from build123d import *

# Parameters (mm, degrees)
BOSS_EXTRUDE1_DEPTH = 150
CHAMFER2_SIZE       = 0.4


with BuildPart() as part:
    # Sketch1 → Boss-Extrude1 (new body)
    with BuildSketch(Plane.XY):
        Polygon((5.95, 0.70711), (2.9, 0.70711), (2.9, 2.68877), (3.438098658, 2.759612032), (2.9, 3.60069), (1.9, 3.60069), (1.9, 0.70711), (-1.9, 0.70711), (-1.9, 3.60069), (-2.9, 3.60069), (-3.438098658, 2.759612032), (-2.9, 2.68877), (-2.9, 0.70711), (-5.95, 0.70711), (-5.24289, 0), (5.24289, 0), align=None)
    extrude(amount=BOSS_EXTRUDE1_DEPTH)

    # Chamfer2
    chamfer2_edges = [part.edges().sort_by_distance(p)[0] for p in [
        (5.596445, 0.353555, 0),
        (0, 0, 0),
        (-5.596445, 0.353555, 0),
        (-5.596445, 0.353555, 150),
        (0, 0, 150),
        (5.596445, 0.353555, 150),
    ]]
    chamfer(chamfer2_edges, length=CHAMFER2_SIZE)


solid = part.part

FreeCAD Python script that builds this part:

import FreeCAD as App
import Part
import Sketcher

V = App.Vector
Q = App.Units.Quantity


def edges_at(feature, points):
    """Names of the edges that pass closest to the given points."""
    edges = feature.Shape.Edges
    near = lambda p: min(range(len(edges)), key=lambda i: edges[i].distToShape(Part.Vertex(*p))[0])
    return sorted({f"Edge{near(p) + 1}" for p in points})


def add_polygon(sketch, points):
    """Adds a closed chain of lines whose ends are joined by coincident constraints."""
    first, n = sketch.GeometryCount, len(points)
    for a, b in zip(points, points[1:] + points[:1]):
        sketch.addGeometry(Part.LineSegment(App.Vector(*a, 0), App.Vector(*b, 0)), False)
    for i in range(n):
        sketch.addConstraint(Sketcher.Constraint("Coincident", first + i, 2, first + (i + 1) % n, 1))

doc = App.newDocument("Part")
body = doc.addObject("PartDesign::Body", "Body")

sketch1 = doc.addObject("Sketcher::SketchObject", "Sketch")
body.addObject(sketch1)
sketch1.AttachmentSupport = (doc.XY_Plane, [""])
sketch1.MapMode = "FlatFace"
add_polygon(sketch1, [(6, 0.7), (2.9, 0.7), (2.9, 2.7), (3.4, 2.8), (2.9, 3.6), (1.9, 3.6), (1.9, 0.7), (-1.9, 0.7), (-1.9, 3.6), (-2.9, 3.6), (-3.4, 2.8), (-2.9, 2.7), (-2.9, 0.7), (-6, 0.7), (-5.2, 0), (5.2, 0)])
sketch1.addConstraint([
    Sketcher.Constraint("Horizontal", 0),
    Sketcher.Constraint("Vertical", 1),
    Sketcher.Constraint("Horizontal", 4),
    Sketcher.Constraint("Vertical", 5),
    Sketcher.Constraint("Horizontal", 6),
    Sketcher.Constraint("Vertical", 7),
    Sketcher.Constraint("Horizontal", 8),
    Sketcher.Constraint("Vertical", 11),
    Sketcher.Constraint("Horizontal", 12),
    Sketcher.Constraint("Horizontal", 14),
    Sketcher.Constraint("Symmetric", 13, 2, 14, 2, -1, 1),
    Sketcher.Constraint("Symmetric", 4, 2, 7, 2, -2),
    Sketcher.Constraint("Symmetric", 2, 2, 9, 2, -2),
    Sketcher.Constraint("Symmetric", 1, 2, 10, 2, -2),
    Sketcher.Constraint("Symmetric", 12, 2, 15, 2, -2),
    Sketcher.Constraint("Perpendicular", 13, 15),
    Sketcher.Constraint("Horizontal", 0, 2, 5, 2),
    Sketcher.Constraint("Vertical", 1, 2, 3, 2),
    Sketcher.Constraint("Vertical", 8, 2, 10, 2),
    Sketcher.Constraint("DistanceX", 4, 2, 4, 1, 1.0),
    Sketcher.Constraint("DistanceX", 6, 2, 6, 1, 3.8),
    Sketcher.Constraint("Angle", 2, Q("7.5 deg")),
    Sketcher.Constraint("DistanceX", 0, 2, 0, 1, 3.05),
    Sketcher.Constraint("Angle", 3, Q("122.61 deg")),
    Sketcher.Constraint("DistanceX", 14, 1, 14, 2, 10.48578),
    Sketcher.Constraint("DistanceY", 1, 1, 1, 2, 1.98166),
    Sketcher.Constraint("DistanceY", 5, 2, 5, 1, 2.89358),
])
pad1 = doc.addObject("PartDesign::Pad", "Pad")
body.addObject(pad1)
pad1.Profile = sketch1
pad1.Length = 150
doc.recompute()

chamfer = doc.addObject("PartDesign::Chamfer", "Chamfer")
body.addObject(chamfer)
chamfer.Base = (pad1, edges_at(pad1, [
    (5.596, 0.354, 0),
    (0, 0, 0),
    (-5.596, 0.354, 0),
    (-5.596, 0.354, 150),
    (0, 0, 150),
    (5.596, 0.354, 150),
]))
chamfer.Size = 0.4

doc.recompute()
